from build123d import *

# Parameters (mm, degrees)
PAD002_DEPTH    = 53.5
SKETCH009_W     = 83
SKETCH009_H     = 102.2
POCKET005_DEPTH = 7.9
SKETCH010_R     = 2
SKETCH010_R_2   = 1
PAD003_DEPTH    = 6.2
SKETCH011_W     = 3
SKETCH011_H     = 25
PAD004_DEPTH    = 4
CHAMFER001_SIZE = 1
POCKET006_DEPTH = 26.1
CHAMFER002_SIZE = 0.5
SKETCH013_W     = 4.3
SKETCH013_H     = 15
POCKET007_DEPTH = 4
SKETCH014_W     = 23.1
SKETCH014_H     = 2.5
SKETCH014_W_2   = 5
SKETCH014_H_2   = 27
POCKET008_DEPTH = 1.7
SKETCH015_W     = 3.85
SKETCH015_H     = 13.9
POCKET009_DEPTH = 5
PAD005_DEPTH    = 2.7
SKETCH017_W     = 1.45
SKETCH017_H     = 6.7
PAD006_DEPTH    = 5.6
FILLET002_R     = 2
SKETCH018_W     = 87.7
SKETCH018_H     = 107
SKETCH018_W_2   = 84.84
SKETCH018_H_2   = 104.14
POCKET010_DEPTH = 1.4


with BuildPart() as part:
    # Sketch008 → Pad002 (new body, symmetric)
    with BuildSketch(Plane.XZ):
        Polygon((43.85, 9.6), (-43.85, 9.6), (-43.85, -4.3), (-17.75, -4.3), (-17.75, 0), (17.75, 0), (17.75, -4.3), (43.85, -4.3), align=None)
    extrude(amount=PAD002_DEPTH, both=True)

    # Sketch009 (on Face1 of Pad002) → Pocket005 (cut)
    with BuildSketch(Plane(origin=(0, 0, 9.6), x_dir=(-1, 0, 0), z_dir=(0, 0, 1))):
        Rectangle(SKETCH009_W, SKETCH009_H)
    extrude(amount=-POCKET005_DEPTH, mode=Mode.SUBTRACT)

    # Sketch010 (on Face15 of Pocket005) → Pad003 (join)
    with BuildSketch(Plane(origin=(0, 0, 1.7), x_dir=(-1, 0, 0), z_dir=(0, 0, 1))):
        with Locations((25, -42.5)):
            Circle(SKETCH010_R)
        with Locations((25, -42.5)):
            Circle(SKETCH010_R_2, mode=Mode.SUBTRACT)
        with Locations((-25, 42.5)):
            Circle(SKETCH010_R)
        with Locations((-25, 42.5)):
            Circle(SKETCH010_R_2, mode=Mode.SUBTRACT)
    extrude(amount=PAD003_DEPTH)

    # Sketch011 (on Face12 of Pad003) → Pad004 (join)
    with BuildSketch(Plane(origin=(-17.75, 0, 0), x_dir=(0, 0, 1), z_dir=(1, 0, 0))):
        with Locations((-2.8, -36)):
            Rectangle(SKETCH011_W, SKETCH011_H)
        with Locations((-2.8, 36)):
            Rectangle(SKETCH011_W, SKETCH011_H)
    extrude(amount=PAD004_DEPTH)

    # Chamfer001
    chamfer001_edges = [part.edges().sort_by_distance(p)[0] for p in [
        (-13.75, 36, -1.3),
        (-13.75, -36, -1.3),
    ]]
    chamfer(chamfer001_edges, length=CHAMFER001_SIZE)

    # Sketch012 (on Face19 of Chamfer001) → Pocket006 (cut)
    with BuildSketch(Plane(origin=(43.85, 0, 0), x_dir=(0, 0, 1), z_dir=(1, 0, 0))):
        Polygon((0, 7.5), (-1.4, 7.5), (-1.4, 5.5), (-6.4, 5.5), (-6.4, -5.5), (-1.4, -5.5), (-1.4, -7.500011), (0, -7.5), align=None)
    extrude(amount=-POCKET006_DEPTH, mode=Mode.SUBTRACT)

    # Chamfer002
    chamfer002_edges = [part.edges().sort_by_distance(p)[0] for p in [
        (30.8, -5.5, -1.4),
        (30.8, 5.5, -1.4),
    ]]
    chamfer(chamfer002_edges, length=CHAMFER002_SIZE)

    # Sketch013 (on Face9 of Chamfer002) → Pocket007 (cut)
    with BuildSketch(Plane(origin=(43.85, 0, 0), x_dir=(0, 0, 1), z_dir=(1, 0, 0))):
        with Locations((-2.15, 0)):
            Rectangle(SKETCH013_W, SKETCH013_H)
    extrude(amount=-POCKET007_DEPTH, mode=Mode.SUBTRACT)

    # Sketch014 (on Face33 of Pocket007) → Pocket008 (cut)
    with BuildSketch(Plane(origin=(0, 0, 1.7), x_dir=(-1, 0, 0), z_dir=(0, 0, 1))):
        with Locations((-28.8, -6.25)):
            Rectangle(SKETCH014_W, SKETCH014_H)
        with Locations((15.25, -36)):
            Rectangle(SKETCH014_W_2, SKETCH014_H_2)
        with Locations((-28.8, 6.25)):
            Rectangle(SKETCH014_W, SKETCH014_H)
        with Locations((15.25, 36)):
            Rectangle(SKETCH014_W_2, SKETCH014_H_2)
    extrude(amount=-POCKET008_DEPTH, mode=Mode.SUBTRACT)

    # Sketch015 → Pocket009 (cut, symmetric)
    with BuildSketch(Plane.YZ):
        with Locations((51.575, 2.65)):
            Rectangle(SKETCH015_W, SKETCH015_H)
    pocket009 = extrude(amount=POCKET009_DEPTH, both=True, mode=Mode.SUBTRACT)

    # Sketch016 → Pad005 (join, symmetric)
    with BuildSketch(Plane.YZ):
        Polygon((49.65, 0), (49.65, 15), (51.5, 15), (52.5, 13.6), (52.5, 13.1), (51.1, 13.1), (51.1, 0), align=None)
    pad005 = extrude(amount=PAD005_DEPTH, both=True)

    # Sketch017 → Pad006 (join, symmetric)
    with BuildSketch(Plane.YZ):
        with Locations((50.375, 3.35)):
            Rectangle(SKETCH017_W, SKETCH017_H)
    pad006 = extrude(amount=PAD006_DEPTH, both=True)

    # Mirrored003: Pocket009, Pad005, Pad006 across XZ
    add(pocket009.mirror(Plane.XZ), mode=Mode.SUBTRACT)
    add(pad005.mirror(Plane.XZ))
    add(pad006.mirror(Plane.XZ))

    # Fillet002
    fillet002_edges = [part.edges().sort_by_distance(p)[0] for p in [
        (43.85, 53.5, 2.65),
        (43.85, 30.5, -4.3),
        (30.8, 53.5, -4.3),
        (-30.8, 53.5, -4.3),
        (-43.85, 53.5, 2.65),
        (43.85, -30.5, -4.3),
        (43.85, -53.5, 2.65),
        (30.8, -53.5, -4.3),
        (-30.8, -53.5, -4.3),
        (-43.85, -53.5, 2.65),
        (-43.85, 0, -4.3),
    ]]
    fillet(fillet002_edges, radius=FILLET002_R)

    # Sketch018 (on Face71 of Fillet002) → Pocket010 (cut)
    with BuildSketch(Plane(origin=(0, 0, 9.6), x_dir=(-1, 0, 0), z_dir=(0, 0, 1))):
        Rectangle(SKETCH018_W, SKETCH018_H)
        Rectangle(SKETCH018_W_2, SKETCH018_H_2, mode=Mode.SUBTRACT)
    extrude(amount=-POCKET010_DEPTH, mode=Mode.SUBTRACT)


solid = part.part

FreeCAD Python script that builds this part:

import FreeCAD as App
import Part
import Sketcher

V = App.Vector


def edges_at(feature, points):
    """Names of the edges that pass closest to the given points."""
    edges = feature.Shape.Edges
    near = lambda p: min(range(len(edges)), key=lambda i: edges[i].distToShape(Part.Vertex(*p))[0])
    return sorted({f"Edge{near(p) + 1}" for p in points})

doc = App.newDocument("Part")
params = doc.addObject("Spreadsheet::Sheet", "Params")
for row, (alias, value) in enumerate([
    ("sketch1_width", "87.7 mm"),
    ("sketch1_width2", "26.1 mm"),
    ("sketch1_height", "13.9 mm"),
    ("sketch1_height2", "4.3 mm"),
    ("pad1_length", "107 mm"),
    ("sketch2_width", "83 mm"),
    ("sketch2_height", "102.2 mm"),
    ("pocket1_length", "7.9 mm"),
    ("sketch3_diameter", "4 mm"),
    ("sketch3_diameter2", "2 mm"),
    ("pad2_length", "6.2 mm"),
    ("sketch4_width", "25 mm"),
    ("sketch4_height", "3 mm"),
    ("pad3_length", "4 mm"),
    ("chamfer_size", "1 mm"),
    ("sketch5_width", "2 mm"),
    ("sketch5_width2", "11 mm"),
    ("sketch5_height", "5 mm"),
    ("sketch5_height2", "1.4 mm"),
    ("pocket2_length", "26.1 mm"),
    ("chamfer2_size", "0.5 mm"),
    ("sketch6_width", "15 mm"),
    ("sketch6_height", "4.3 mm"),
    ("pocket3_length", "4 mm"),
    ("sketch7_width", "5 mm"),
    ("sketch7_height", "27 mm"),
    ("sketch7_width2", "23.1 mm"),
    ("sketch7_height2", "2.5 mm"),
    ("pocket4_length", "1.7 mm"),
    ("sketch8_height", "13.9 mm"),
    ("sketch8_width", "3.85 mm"),
    ("pocket5_length", "10 mm"),
    ("sketch9_height", "15 mm"),
    ("sketch9_width", "1.4 mm"),
    ("sketch9_height2", "13.1 mm"),
    ("sketch9_height3", "0.5 mm"),
    ("sketch9_width2", "1.45 mm"),
    ("pad4_length", "5.4 mm"),
    ("sketch10_height", "6.7 mm"),
    ("sketch10_width", "1.45 mm"),
    ("pad5_length", "11.2 mm"),
    ("fillet_radius", "2 mm"),
    ("sketch11_height", "107 mm"),
    ("sketch11_width", "87.7 mm"),
    ("sketch11_width2", "84.84 mm"),
    ("sketch11_height2", "104.14 mm"),
    ("pocket6_length", "1.4 mm"),
], start=1):
    params.set(f"A{row}", alias)
    params.set(f"B{row}", "=" + value)
    params.setAlias(f"B{row}", alias)

body = doc.addObject("PartDesign::Body", "Body")

# Sketch on XZ plane
sketch1 = body.newObject("Sketcher::SketchObject", "Sketch")
sketch1.AttachmentSupport = (doc.getObject("XZ_Plane"), [""])
sketch1.MapMode = "FlatFace"
sketch1.addGeometry(Part.LineSegment(V(43.85, 9.6, 0), V(-43.85, 9.6, 0)), False)
sketch1.addGeometry(Part.LineSegment(V(-43.85, 9.6, 0), V(-43.85, -4.3, 0)), False)
sketch1.addGeometry(Part.LineSegment(V(-43.85, -4.3, 0), V(-17.75, -4.3, 0)), False)
sketch1.addGeometry(Part.LineSegment(V(-17.75, -4.3, 0), V(-17.75, 0, 0)), False)
sketch1.addGeometry(Part.LineSegment(V(-17.75, 0, 0), V(17.75, 0, 0)), False)
sketch1.addGeometry(Part.LineSegment(V(17.75, 0, 0), V(17.75, -4.3, 0)), False)
sketch1.addGeometry(Part.LineSegment(V(17.75, -4.3, 0), V(43.85, -4.3, 0)), False)
sketch1.addGeometry(Part.LineSegment(V(43.85, -4.3, 0), V(43.85, 9.6, 0)), False)
sketch1.addConstraint(Sketcher.Constraint("Coincident", 0, 2, 1, 1))
sketch1.addConstraint(Sketcher.Constraint("Coincident", 1, 2, 2, 1))
sketch1.addConstraint(Sketcher.Constraint("Coincident", 2, 2, 3, 1))
sketch1.addConstraint(Sketcher.Constraint("Coincident", 3, 2, 4, 1))
sketch1.addConstraint(Sketcher.Constraint("Coincident", 4, 2, 5, 1))
sketch1.addConstraint(Sketcher.Constraint("Coincident", 5, 2, 6, 1))
sketch1.addConstraint(Sketcher.Constraint("Coincident", 6, 2, 7, 1))
sketch1.addConstraint(Sketcher.Constraint("Coincident", 7, 2, 0, 1))
sketch1.addConstraint(Sketcher.Constraint("Horizontal", 0))
sketch1.addConstraint(Sketcher.Constraint("Vertical", 1))
sketch1.addConstraint(Sketcher.Constraint("Horizontal", 2))
sketch1.addConstraint(Sketcher.Constraint("Vertical", 3))
sketch1.addConstraint(Sketcher.Constraint("Horizontal", 4))
sketch1.addConstraint(Sketcher.Constraint("Vertical", 5))
sketch1.addConstraint(Sketcher.Constraint("Horizontal", 6))
sketch1.addConstraint(Sketcher.Constraint("Vertical", 7))
sketch1.addConstraint(Sketcher.Constraint("Symmetric", 3, 2, 4, 2, -1, 1))
sketch1.addConstraint(Sketcher.Constraint("Symmetric", 1, 2, 6, 2, -2))
sketch1.addConstraint(Sketcher.Constraint("DistanceX", 0, 2, 0, 1, 87.7))
sketch1.addConstraint(Sketcher.Constraint("DistanceX", 2, 1, 2, 2, 26.1))
sketch1.addConstraint(Sketcher.Constraint("DistanceY", 1, 2, 1, 1, 13.9))
sketch1.addConstraint(Sketcher.Constraint("DistanceY", 3, 1, 3, 2, 4.3))
sketch1.setExpression("Constraints[18]", "Params.sketch1_width")
sketch1.setExpression("Constraints[19]", "Params.sketch1_width2")
sketch1.setExpression("Constraints[20]", "Params.sketch1_height")
sketch1.setExpression("Constraints[21]", "Params.sketch1_height2")
pad1 = body.newObject("PartDesign::Pad", "Pad")
pad1.Profile = sketch1
pad1.setExpression("Length", "Params.pad1_length")
pad1.Midplane = True

# Sketch on XY plane
sketch2 = body.newObject("Sketcher::SketchObject", "Sketch001")
sketch2.AttachmentSupport = (doc.getObject("XY_Plane"), [""])
sketch2.MapMode = "FlatFace"
sketch2.AttachmentOffset = App.Placement(V(0, 0, 9.6), App.Rotation())
sketch2.addGeometry(Part.LineSegment(V(41.5, -51.1, 0), V(41.5, 51.1, 0)), False)
sketch2.addGeometry(Part.LineSegment(V(41.5, 51.1, 0), V(-41.5, 51.1, 0)), False)
sketch2.addGeometry(Part.LineSegment(V(-41.5, 51.1, 0), V(-41.5, -51.1, 0)), False)
sketch2.addGeometry(Part.LineSegment(V(-41.5, -51.1, 0), V(41.5, -51.1, 0)), False)
sketch2.addConstraint(Sketcher.Constraint("Coincident", 0, 2, 1, 1))
sketch2.addConstraint(Sketcher.Constraint("Coincident", 1, 2, 2, 1))
sketch2.addConstraint(Sketcher.Constraint("Coincident", 2, 2, 3, 1))
sketch2.addConstraint(Sketcher.Constraint("Coincident", 3, 2, 0, 1))
sketch2.addConstraint(Sketcher.Constraint("Vertical", 0))
sketch2.addConstraint(Sketcher.Constraint("Horizontal", 1))
sketch2.addConstraint(Sketcher.Constraint("Vertical", 2))
sketch2.addConstraint(Sketcher.Constraint("Horizontal", 3))
sketch2.addConstraint(Sketcher.Constraint("Symmetric", 0, 2, 2, 2, -1, 1))
sketch2.addConstraint(Sketcher.Constraint("DistanceX", 1, 2, 1, 1, 83.0))
sketch2.addConstraint(Sketcher.Constraint("DistanceY", 0, 1, 0, 2, 102.2))
sketch2.setExpression("Constraints[9]", "Params.sketch2_width")
sketch2.setExpression("Constraints[10]", "Params.sketch2_height")
pocket1 = body.newObject("PartDesign::Pocket", "Pocket")
pocket1.Profile = sketch2
pocket1.setExpression("Length", "Params.pocket1_length")

# Sketch on XY plane
sketch3 = body.newObject("Sketcher::SketchObject", "Sketch002")
sketch3.AttachmentSupport = (doc.getObject("XY_Plane"), [""])
sketch3.MapMode = "FlatFace"
sketch3.AttachmentOffset = App.Placement(V(0, 0, 1.7), App.Rotation())
sketch3.addGeometry(Part.Circle(V(-25, 42.5, 0), V(0, 0, 1), 2), False)
sketch3.addGeometry(Part.Circle(V(-25, 42.5, 0), V(0, 0, 1), 1), False)
sketch3.addGeometry(Part.Circle(V(25, -42.5, 0), V(0, 0, 1), 2), False)
sketch3.addGeometry(Part.Circle(V(25, -42.5, 0), V(0, 0, 1), 1), False)
sketch3.addConstraint(Sketcher.Constraint("Coincident", 1, 3, 0, 3))
sketch3.addConstraint(Sketcher.Constraint("Coincident", 3, 3, 2, 3))
sketch3.addConstraint(Sketcher.Constraint("Equal", 0, 2))
sketch3.addConstraint(Sketcher.Constraint("Equal", 1, 3))
sketch3.addConstraint(Sketcher.Constraint("Symmetric", 0, 3, 2, 3, -1, 1))
sketch3.addConstraint(Sketcher.Constraint("Diameter", 0, 4.0))
sketch3.addConstraint(Sketcher.Constraint("Diameter", 1, 2.0))
sketch3.addConstraint(Sketcher.Constraint("DistanceX", 0, 3, -1, 1, 25.0))
sketch3.addConstraint(Sketcher.Constraint("DistanceY", 2, 3, 0, 3, 85.0))
sketch3.setExpression("Constraints[5]", "Params.sketch3_diameter")
sketch3.setExpression("Constraints[6]", "Params.sketch3_diameter2")
pad2 = body.newObject("PartDesign::Pad", "Pad001")
pad2.Profile = sketch3
pad2.setExpression("Length", "Params.pad2_length")

# Sketch on YZ plane
sketch4 = body.newObject("Sketcher::SketchObject", "Sketch003")
sketch4.AttachmentSupport = (doc.getObject("YZ_Plane"), [""])
sketch4.MapMode = "FlatFace"
sketch4.AttachmentOffset = App.Placement(V(0, 0, -17.75), App.Rotation())
sketch4.addGeometry(Part.LineSegment(V(23.5, -4.3, 0), V(48.5, -4.3, 0)), False)
sketch4.addGeometry(Part.LineSegment(V(48.5, -4.3, 0), V(48.5, -1.3, 0)), False)
sketch4.addGeometry(Part.LineSegment(V(48.5, -1.3, 0), V(23.5, -1.3, 0)), False)
sketch4.addGeometry(Part.LineSegment(V(23.5, -1.3, 0), V(23.5, -4.3, 0)), False)
sketch4.addGeometry(Part.LineSegment(V(-48.5, -4.3, 0), V(-23.5, -4.3, 0)), False)
sketch4.addGeometry(Part.LineSegment(V(-23.5, -4.3, 0), V(-23.5, -1.3, 0)), False)
sketch4.addGeometry(Part.LineSegment(V(-23.5, -1.3, 0), V(-48.5, -1.3, 0)), False)
sketch4.addGeometry(Part.LineSegment(V(-48.5, -1.3, 0), V(-48.5, -4.3, 0)), False)
sketch4.addConstraint(Sketcher.Constraint("Coincident", 0, 2, 1, 1))
sketch4.addConstraint(Sketcher.Constraint("Coincident", 1, 2, 2, 1))
sketch4.addConstraint(Sketcher.Constraint("Coincident", 2, 2, 3, 1))
sketch4.addConstraint(Sketcher.Constraint("Coincident", 3, 2, 0, 1))
sketch4.addConstraint(Sketcher.Constraint("Coincident", 4, 2, 5, 1))
sketch4.addConstraint(Sketcher.Constraint("Coincident", 5, 2, 6, 1))
sketch4.addConstraint(Sketcher.Constraint("Coincident", 6, 2, 7, 1))
sketch4.addConstraint(Sketcher.Constraint("Coincident", 7, 2, 4, 1))
sketch4.addConstraint(Sketcher.Constraint("Horizontal", 0))
sketch4.addConstraint(Sketcher.Constraint("Vertical", 1))
sketch4.addConstraint(Sketcher.Constraint("Horizontal", 2))
sketch4.addConstraint(Sketcher.Constraint("Vertical", 3))
sketch4.addConstraint(Sketcher.Constraint("Horizontal", 4))
sketch4.addConstraint(Sketcher.Constraint("Vertical", 5))
sketch4.addConstraint(Sketcher.Constraint("Horizontal", 6))
sketch4.addConstraint(Sketcher.Constraint("Vertical", 7))
sketch4.addConstraint(Sketcher.Constraint("Symmetric", 3, 2, 4, 2, -2))
sketch4.addConstraint(Sketcher.Constraint("Symmetric", 1, 2, 6, 2, -2))
sketch4.addConstraint(Sketcher.Constraint("DistanceX", 0, 1, 0, 2, 25.0))
sketch4.addConstraint(Sketcher.Constraint("DistanceY", 1, 1, 1, 2, 3.0))
sketch4.addConstraint(Sketcher.Constraint("DistanceX", 4, 2, 3, 2, 47.0))
sketch4.addConstraint(Sketcher.Constraint("DistanceY", 0, 2, -1, 1, 4.3))
sketch4.setExpression("Constraints[18]", "Params.sketch4_width")
sketch4.setExpression("Constraints[19]", "Params.sketch4_height")
pad3 = body.newObject("PartDesign::Pad", "Pad002")
pad3.Profile = sketch4
pad3.setExpression("Length", "Params.pad3_length")
doc.recompute()

chamfer = body.newObject("PartDesign::Chamfer", "Chamfer")
chamfer.Base = (pad3, edges_at(pad3, [(-13.75, 36, -1.3), (-13.75, -36, -1.3)]))
chamfer.setExpression("Size", "Params.chamfer_size")

# Sketch on YZ plane
sketch5 = body.newObject("Sketcher::SketchObject", "Sketch004")
sketch5.AttachmentSupport = (doc.getObject("YZ_Plane"), [""])
sketch5.MapMode = "FlatFace"
sketch5.AttachmentOffset = App.Placement(V(0, 0, 43.85), App.Rotation())
sketch5.addGeometry(Part.LineSegment(V(-7.5, 0, 0), V(-7.5, -1.4, 0)), False)
sketch5.addGeometry(Part.LineSegment(V(-7.5, -1.4, 0), V(-5.5, -1.4, 0)), False)
sketch5.addGeometry(Part.LineSegment(V(-5.5, -1.4, 0), V(-5.5, -6.4, 0)), False)
sketch5.addGeometry(Part.LineSegment(V(-5.5, -6.4, 0), V(5.5, -6.4, 0)), False)
sketch5.addGeometry(Part.LineSegment(V(5.5, -6.4, 0), V(5.5, -1.4, 0)), False)
sketch5.addGeometry(Part.LineSegment(V(5.5, -1.4, 0), V(7.500011, -1.4, 0)), False)
sketch5.addGeometry(Part.LineSegment(V(7.500011, -1.4, 0), V(7.5, 0, 0)), False)
sketch5.addGeometry(Part.LineSegment(V(7.5, 0, 0), V(-7.5, 0, 0)), False)
sketch5.addConstraint(Sketcher.Constraint("Coincident", 0, 2, 1, 1))
sketch5.addConstraint(Sketcher.Constraint("Coincident", 1, 2, 2, 1))
sketch5.addConstraint(Sketcher.Constraint("Coincident", 2, 2, 3, 1))
sketch5.addConstraint(Sketcher.Constraint("Coincident", 3, 2, 4, 1))
sketch5.addConstraint(Sketcher.Constraint("Coincident", 4, 2, 5, 1))
sketch5.addConstraint(Sketcher.Constraint("Coincident", 5, 2, 6, 1))
sketch5.addConstraint(Sketcher.Constraint("Coincident", 6, 2, 7, 1))
sketch5.addConstraint(Sketcher.Constraint("Coincident", 7, 2, 0, 1))
sketch5.addConstraint(Sketcher.Constraint("Vertical", 0))
sketch5.addConstraint(Sketcher.Constraint("Horizontal", 1))
sketch5.addConstraint(Sketcher.Constraint("Vertical", 2))
sketch5.addConstraint(Sketcher.Constraint("Horizontal", 3))
sketch5.addConstraint(Sketcher.Constraint("Vertical", 4))
sketch5.addConstraint(Sketcher.Constraint("Horizontal", 5))
sketch5.addConstraint(Sketcher.Constraint("Horizontal", 7))
sketch5.addConstraint(Sketcher.Constraint("Symmetric", 6, 2, 7, 2, -1, 1))
sketch5.addConstraint(Sketcher.Constraint("Symmetric", 1, 2, 4, 2, -2))
sketch5.addConstraint(Sketcher.Constraint("DistanceX", 1, 1, 1, 2, 2.0))
sketch5.addConstraint(Sketcher.Constraint("DistanceX", 3, 1, 3, 2, 11.0))
sketch5.addConstraint(Sketcher.Constraint("DistanceY", 2, 2, 2, 1, 5.0))
sketch5.addConstraint(Sketcher.Constraint("DistanceY", 0, 2, 0, 1, 1.4))
sketch5.addConstraint(Sketcher.Constraint("DistanceX", 5, 1, 5, 2, 2.000011))
sketch5.setExpression("Constraints[17]", "Params.sketch5_width")
sketch5.setExpression("Constraints[18]", "Params.sketch5_width2")
sketch5.setExpression("Constraints[19]", "Params.sketch5_height")
sketch5.setExpression("Constraints[20]", "Params.sketch5_height2")
pocket2 = body.newObject("PartDesign::Pocket", "Pocket001")
pocket2.Profile = sketch5
pocket2.setExpression("Length", "Params.pocket2_length")
doc.recompute()

chamfer2 = body.newObject("PartDesign::Chamfer", "Chamfer001")
chamfer2.Base = (pocket2, edges_at(pocket2, [(30.8, -5.5, -1.4), (30.8, 5.5, -1.4)]))
chamfer2.setExpression("Size", "Params.chamfer2_size")

# Sketch on YZ plane
sketch6 = body.newObject("Sketcher::SketchObject", "Sketch005")
sketch6.AttachmentSupport = (doc.getObject("YZ_Plane"), [""])
sketch6.MapMode = "FlatFace"
sketch6.AttachmentOffset = App.Placement(V(0, 0, 43.85), App.Rotation())
sketch6.addGeometry(Part.LineSegment(V(-7.5, -4.3, 0), V(7.5, -4.3, 0)), False)
sketch6.addGeometry(Part.LineSegment(V(7.5, -4.3, 0), V(7.5, 0, 0)), False)
sketch6.addGeometry(Part.LineSegment(V(7.5, 0, 0), V(-7.5, 0, 0)), False)
sketch6.addGeometry(Part.LineSegment(V(-7.5, 0, 0), V(-7.5, -4.3, 0)), False)
sketch6.addConstraint(Sketcher.Constraint("Coincident", 0, 2, 1, 1))
sketch6.addConstraint(Sketcher.Constraint("Coincident", 1, 2, 2, 1))
sketch6.addConstraint(Sketcher.Constraint("Coincident", 2, 2, 3, 1))
sketch6.addConstraint(Sketcher.Constraint("Coincident", 3, 2, 0, 1))
sketch6.addConstraint(Sketcher.Constraint("Horizontal", 0))
sketch6.addConstraint(Sketcher.Constraint("Vertical", 1))
sketch6.addConstraint(Sketcher.Constraint("Horizontal", 2))
sketch6.addConstraint(Sketcher.Constraint("Vertical", 3))
sketch6.addConstraint(Sketcher.Constraint("Symmetric", 1, 2, 2, 2, -1, 1))
sketch6.addConstraint(Sketcher.Constraint("DistanceX", 0, 1, 0, 2, 15.0))
sketch6.addConstraint(Sketcher.Constraint("DistanceY", 1, 1, 1, 2, 4.3))
sketch6.setExpression("Constraints[9]", "Params.sketch6_width")
sketch6.setExpression("Constraints[10]", "Params.sketch6_height")
pocket3 = body.newObject("PartDesign::Pocket", "Pocket002")
pocket3.Profile = sketch6
pocket3.setExpression("Length", "Params.pocket3_length")

# Sketch on XY plane
sketch7 = body.newObject("Sketcher::SketchObject", "Sketch006")
sketch7.AttachmentSupport = (doc.getObject("XY_Plane"), [""])
sketch7.MapMode = "FlatFace"
sketch7.AttachmentOffset = App.Placement(V(0, 0, 1.7), App.Rotation())
sketch7.addGeometry(Part.LineSegment(V(40.35, 5, 0), V(40.35, 7.5, 0)), False)
sketch7.addGeometry(Part.LineSegment(V(40.35, 7.5, 0), V(17.25, 7.5, 0)), False)
sketch7.addGeometry(Part.LineSegment(V(17.25, 7.5, 0), V(17.25, 5, 0)), False)
sketch7.addGeometry(Part.LineSegment(V(17.25, 5, 0), V(40.35, 5, 0)), False)
sketch7.addGeometry(Part.LineSegment(V(-12.75, 22.5, 0), V(-12.75, 49.5, 0)), False)
sketch7.addGeometry(Part.LineSegment(V(-12.75, 49.5, 0), V(-17.75, 49.5, 0)), False)
sketch7.addGeometry(Part.LineSegment(V(-17.75, 49.5, 0), V(-17.75, 22.5, 0)), False)
sketch7.addGeometry(Part.LineSegment(V(-17.75, 22.5, 0), V(-12.75, 22.5, 0)), False)
sketch7.addGeometry(Part.LineSegment(V(40.35, -7.5, 0), V(40.35, -5, 0)), False)
sketch7.addGeometry(Part.LineSegment(V(40.35, -5, 0), V(17.25, -5, 0)), False)
sketch7.addGeometry(Part.LineSegment(V(17.25, -5, 0), V(17.25, -7.5, 0)), False)
sketch7.addGeometry(Part.LineSegment(V(17.25, -7.5, 0), V(40.35, -7.5, 0)), False)
sketch7.addGeometry(Part.LineSegment(V(-12.75, -49.5, 0), V(-12.75, -22.5, 0)), False)
sketch7.addGeometry(Part.LineSegment(V(-12.75, -22.5, 0), V(-17.75, -22.5, 0)), False)
sketch7.addGeometry(Part.LineSegment(V(-17.75, -22.5, 0), V(-17.75, -49.5, 0)), False)
sketch7.addGeometry(Part.LineSegment(V(-17.75, -49.5, 0), V(-12.75, -49.5, 0)), False)
sketch7.addConstraint(Sketcher.Constraint("Coincident", 0, 2, 1, 1))
sketch7.addConstraint(Sketcher.Constraint("Coincident", 1, 2, 2, 1))
sketch7.addConstraint(Sketcher.Constraint("Coincident", 2, 2, 3, 1))
sketch7.addConstraint(Sketcher.Constraint("Coincident", 3, 2, 0, 1))
sketch7.addConstraint(Sketcher.Constraint("Coincident", 4, 2, 5, 1))
sketch7.addConstraint(Sketcher.Constraint("Coincident", 5, 2, 6, 1))
sketch7.addConstraint(Sketcher.Constraint("Coincident", 6, 2, 7, 1))
sketch7.addConstraint(Sketcher.Constraint("Coincident", 7, 2, 4, 1))
sketch7.addConstraint(Sketcher.Constraint("Coincident", 8, 2, 9, 1))
sketch7.addConstraint(Sketcher.Constraint("Coincident", 9, 2, 10, 1))
sketch7.addConstraint(Sketcher.Constraint("Coincident", 10, 2, 11, 1))
sketch7.addConstraint(Sketcher.Constraint("Coincident", 11, 2, 8, 1))
sketch7.addConstraint(Sketcher.Constraint("Coincident", 12, 2, 13, 1))
sketch7.addConstraint(Sketcher.Constraint("Coincident", 13, 2, 14, 1))
sketch7.addConstraint(Sketcher.Constraint("Coincident", 14, 2, 15, 1))
sketch7.addConstraint(Sketcher.Constraint("Coincident", 15, 2, 12, 1))
sketch7.addConstraint(Sketcher.Constraint("Vertical", 0))
sketch7.addConstraint(Sketcher.Constraint("Horizontal", 1))
sketch7.addConstraint(Sketcher.Constraint("Vertical", 2))
sketch7.addConstraint(Sketcher.Constraint("Horizontal", 3))
sketch7.addConstraint(Sketcher.Constraint("Vertical", 4))
sketch7.addConstraint(Sketcher.Constraint("Horizontal", 5))
sketch7.addConstraint(Sketcher.Constraint("Vertical", 6))
sketch7.addConstraint(Sketcher.Constraint("Horizontal", 7))
sketch7.addConstraint(Sketcher.Constraint("Vertical", 8))
sketch7.addConstraint(Sketcher.Constraint("Horizontal", 9))
sketch7.addConstraint(Sketcher.Constraint("Vertical", 10))
sketch7.addConstraint(Sketcher.Constraint("Horizontal", 11))
sketch7.addConstraint(Sketcher.Constraint("Vertical", 12))
sketch7.addConstraint(Sketcher.Constraint("Horizontal", 13))
sketch7.addConstraint(Sketcher.Constraint("Vertical", 14))
sketch7.addConstraint(Sketcher.Constraint("Horizontal", 15))
sketch7.addConstraint(Sketcher.Constraint("Symmetric", 3, 2, 8, 2, -1))
sketch7.addConstraint(Sketcher.Constraint("Symmetric", 1, 2, 10, 2, -1))
sketch7.addConstraint(Sketcher.Constraint("Symmetric", 7, 2, 12, 2, -1))
sketch7.addConstraint(Sketcher.Constraint("Symmetric", 5, 2, 14, 2, -1))
sketch7.addConstraint(Sketcher.Constraint("DistanceX", 5, 2, 5, 1, 5.0))
sketch7.addConstraint(Sketcher.Constraint("DistanceY", 4, 1, 4, 2, 27.0))
sketch7.addConstraint(Sketcher.Constraint("DistanceX", 1, 2, 1, 1, 23.1))
sketch7.addConstraint(Sketcher.Constraint("DistanceY", 0, 1, 0, 2, 2.5))
sketch7.addConstraint(Sketcher.Constraint("DistanceY", -1, 1, 2, 2, 5.0))
sketch7.addConstraint(Sketcher.Constraint("DistanceX", 4, 2, 1, 2, 30.0))
sketch7.addConstraint(Sketcher.Constraint("DistanceY", 1, 2, 4, 2, 42.0))
sketch7.addConstraint(Sketcher.Constraint("DistanceX", -1, 1, 0, 2, 40.35))
sketch7.setExpression("Constraints[36]", "Params.sketch7_width")
sketch7.setExpression("Constraints[37]", "Params.sketch7_height")
sketch7.setExpression("Constraints[38]", "Params.sketch7_width2")
sketch7.setExpression("Constraints[39]", "Params.sketch7_height2")
pocket4 = body.newObject("PartDesign::Pocket", "Pocket003")
pocket4.Profile = sketch7
pocket4.setExpression("Length", "Params.pocket4_length")

# Sketch on YZ plane
sketch8 = body.newObject("Sketcher::SketchObject", "Sketch007")
sketch8.AttachmentSupport = (doc.getObject("YZ_Plane"), [""])
sketch8.MapMode = "FlatFace"
sketch8.addGeometry(Part.LineSegment(V(49.65, 9.6, 0), V(49.65, -4.3, 0)), False)
sketch8.addGeometry(Part.LineSegment(V(49.65, -4.3, 0), V(53.5, -4.3, 0)), False)
sketch8.addGeometry(Part.LineSegment(V(53.5, -4.3, 0), V(53.5, 9.6, 0)), False)
sketch8.addGeometry(Part.LineSegment(V(53.5, 9.6, 0), V(49.65, 9.6, 0)), False)
sketch8.addConstraint(Sketcher.Constraint("Coincident", 0, 2, 1, 1))
sketch8.addConstraint(Sketcher.Constraint("Coincident", 1, 2, 2, 1))
sketch8.addConstraint(Sketcher.Constraint("Coincident", 2, 2, 3, 1))
sketch8.addConstraint(Sketcher.Constraint("Coincident", 3, 2, 0, 1))
sketch8.addConstraint(Sketcher.Constraint("Vertical", 0))
sketch8.addConstraint(Sketcher.Constraint("Horizontal", 1))
sketch8.addConstraint(Sketcher.Constraint("Vertical", 2))
sketch8.addConstraint(Sketcher.Constraint("Horizontal", 3))
sketch8.addConstraint(Sketcher.Constraint("DistanceY", 0, 2, 0, 1, 13.9))
sketch8.addConstraint(Sketcher.Constraint("DistanceX", 1, 1, 1, 2, 3.85))
sketch8.addConstraint(Sketcher.Constraint("DistanceY", 0, 2, -1, 1, 4.3))
sketch8.addConstraint(Sketcher.Constraint("DistanceX", -1, 1, 1, 2, 53.5))
sketch8.setExpression("Constraints[8]", "Params.sketch8_height")
sketch8.setExpression("Constraints[9]", "Params.sketch8_width")
pocket5 = body.newObject("PartDesign::Pocket", "Pocket004")
pocket5.Profile = sketch8
pocket5.setExpression("Length", "Params.pocket5_length")
pocket5.Midplane = True

# Sketch on YZ plane
sketch9 = body.newObject("Sketcher::SketchObject", "Sketch008")
sketch9.AttachmentSupport = (doc.getObject("YZ_Plane"), [""])
sketch9.MapMode = "FlatFace"
sketch9.addGeometry(Part.LineSegment(V(49.65, 15, 0), V(49.65, 0, 0)), False)
sketch9.addGeometry(Part.LineSegment(V(49.65, 0, 0), V(51.1, 0, 0)), False)
sketch9.addGeometry(Part.LineSegment(V(51.1, 0, 0), V(51.1, 13.1, 0)), False)
sketch9.addGeometry(Part.LineSegment(V(51.1, 13.1, 0), V(52.5, 13.1, 0)), False)
sketch9.addGeometry(Part.LineSegment(V(52.5, 13.1, 0), V(52.5, 13.6, 0)), False)
sketch9.addGeometry(Part.LineSegment(V(52.5, 13.6, 0), V(51.5, 15, 0)), False)
sketch9.addGeometry(Part.LineSegment(V(51.5, 15, 0), V(49.65, 15, 0)), False)
sketch9.addConstraint(Sketcher.Constraint("Coincident", 0, 2, 1, 1))
sketch9.addConstraint(Sketcher.Constraint("Coincident", 1, 2, 2, 1))
sketch9.addConstraint(Sketcher.Constraint("Coincident", 2, 2, 3, 1))
sketch9.addConstraint(Sketcher.Constraint("Coincident", 3, 2, 4, 1))
sketch9.addConstraint(Sketcher.Constraint("Coincident", 4, 2, 5, 1))
sketch9.addConstraint(Sketcher.Constraint("Coincident", 5, 2, 6, 1))
sketch9.addConstraint(Sketcher.Constraint("Coincident", 6, 2, 0, 1))
sketch9.addConstraint(Sketcher.Constraint("Vertical", 0))
sketch9.addConstraint(Sketcher.Constraint("Horizontal", 1))
sketch9.addConstraint(Sketcher.Constraint("Vertical", 2))
sketch9.addConstraint(Sketcher.Constraint("Horizontal", 3))
sketch9.addConstraint(Sketcher.Constraint("Vertical", 4))
sketch9.addConstraint(Sketcher.Constraint("Horizontal", 6))
sketch9.addConstraint(Sketcher.Constraint("PointOnObject", 0, 2, -1))
sketch9.addConstraint(Sketcher.Constraint("DistanceY", 0, 2, 0, 1, 15.0))
sketch9.addConstraint(Sketcher.Constraint("DistanceX", 3, 1, 3, 2, 1.4))
sketch9.addConstraint(Sketcher.Constraint("DistanceY", 2, 1, 2, 2, 13.1))
sketch9.addConstraint(Sketcher.Constraint("DistanceY", 4, 1, 4, 2, 0.5))
sketch9.addConstraint(Sketcher.Constraint("DistanceX", 5, 2, 4, 2, 1.0))
sketch9.addConstraint(Sketcher.Constraint("DistanceX", 1, 1, 1, 2, 1.45))
sketch9.addConstraint(Sketcher.Constraint("DistanceX", -1, 1, 1, 2, 51.1))
sketch9.setExpression("Constraints[14]", "Params.sketch9_height")
sketch9.setExpression("Constraints[15]", "Params.sketch9_width")
sketch9.setExpression("Constraints[16]", "Params.sketch9_height2")
sketch9.setExpression("Constraints[17]", "Params.sketch9_height3")
sketch9.setExpression("Constraints[19]", "Params.sketch9_width2")
pad4 = body.newObject("PartDesign::Pad", "Pad003")
pad4.Profile = sketch9
pad4.setExpression("Length", "Params.pad4_length")
pad4.Midplane = True

# Sketch on YZ plane
sketch10 = body.newObject("Sketcher::SketchObject", "Sketch009")
sketch10.AttachmentSupport = (doc.getObject("YZ_Plane"), [""])
sketch10.MapMode = "FlatFace"
sketch10.addGeometry(Part.LineSegment(V(49.65, 6.7, 0), V(49.65, 0, 0)), False)
sketch10.addGeometry(Part.LineSegment(V(49.65, 0, 0), V(51.1, 0, 0)), False)
sketch10.addGeometry(Part.LineSegment(V(51.1, 0, 0), V(51.1, 6.7, 0)), False)
sketch10.addGeometry(Part.LineSegment(V(51.1, 6.7, 0), V(49.65, 6.7, 0)), False)
sketch10.addConstraint(Sketcher.Constraint("Coincident", 0, 2, 1, 1))
sketch10.addConstraint(Sketcher.Constraint("Coincident", 1, 2, 2, 1))
sketch10.addConstraint(Sketcher.Constraint("Coincident", 2, 2, 3, 1))
sketch10.addConstraint(Sketcher.Constraint("Coincident", 3, 2, 0, 1))
sketch10.addConstraint(Sketcher.Constraint("Vertical", 0))
sketch10.addConstraint(Sketcher.Constraint("Horizontal", 1))
sketch10.addConstraint(Sketcher.Constraint("Vertical", 2))
sketch10.addConstraint(Sketcher.Constraint("Horizontal", 3))
sketch10.addConstraint(Sketcher.Constraint("PointOnObject", 0, 2, -1))
sketch10.addConstraint(Sketcher.Constraint("DistanceY", 0, 2, 0, 1, 6.7))
sketch10.addConstraint(Sketcher.Constraint("DistanceX", 1, 1, 1, 2, 1.45))
sketch10.addConstraint(Sketcher.Constraint("DistanceX", -1, 1, 1, 2, 51.1))
sketch10.setExpression("Constraints[9]", "Params.sketch10_height")
sketch10.setExpression("Constraints[10]", "Params.sketch10_width")
pad5 = body.newObject("PartDesign::Pad", "Pad004")
pad5.Profile = sketch10
pad5.setExpression("Length", "Params.pad5_length")
pad5.Midplane = True
doc.recompute()

mirrored = body.newObject("PartDesign::Mirrored", "Mirrored")
mirrored.Originals = [pocket5, pad4, pad5]
mirrored.MirrorPlane = (doc.getObject("XZ_Plane"), [""])
body.Tip = mirrored
doc.recompute()

fillet = body.newObject("PartDesign::Fillet", "Fillet")
fillet.Base = (mirrored, edges_at(mirrored, [
    (43.85, 53.5, 2.65),
    (43.85, 30.5, -4.3),
    (30.8, 53.5, -4.3),
    (-30.8, 53.5, -4.3),
    (-43.85, 53.5, 2.65),
    (43.85, -30.5, -4.3),
    (43.85, -53.5, 2.65),
    (30.8, -53.5, -4.3),
    (-30.8, -53.5, -4.3),
    (-43.85, -53.5, 2.65),
    (-43.85, 0, -4.3),
]))
fillet.setExpression("Radius", "Params.fillet_radius")

# Sketch on XY plane
sketch11 = body.newObject("Sketcher::SketchObject", "Sketch010")
sketch11.AttachmentSupport = (doc.getObject("XY_Plane"), [""])
sketch11.MapMode = "FlatFace"
sketch11.AttachmentOffset = App.Placement(V(0, 0, 9.6), App.Rotation())
sketch11.addGeometry(Part.LineSegment(V(43.85, -53.5, 0), V(43.85, 53.5, 0)), False)
sketch11.addGeometry(Part.LineSegment(V(43.85, 53.5, 0), V(-43.85, 53.5, 0)), False)
sketch11.addGeometry(Part.LineSegment(V(-43.85, 53.5, 0), V(-43.85, -53.5, 0)), False)
sketch11.addGeometry(Part.LineSegment(V(-43.85, -53.5, 0), V(43.85, -53.5, 0)), False)
sketch11.addGeometry(Part.LineSegment(V(-42.42, 52.07, 0), V(42.42, 52.07, 0)), False)
sketch11.addGeometry(Part.LineSegment(V(42.42, 52.07, 0), V(42.42, -52.07, 0)), False)
sketch11.addGeometry(Part.LineSegment(V(42.42, -52.07, 0), V(-42.42, -52.07, 0)), False)
sketch11.addGeometry(Part.LineSegment(V(-42.42, -52.07, 0), V(-42.42, 52.07, 0)), False)
sketch11.addConstraint(Sketcher.Constraint("Coincident", 0, 2, 1, 1))
sketch11.addConstraint(Sketcher.Constraint("Coincident", 1, 2, 2, 1))
sketch11.addConstraint(Sketcher.Constraint("Coincident", 2, 2, 3, 1))
sketch11.addConstraint(Sketcher.Constraint("Coincident", 3, 2, 0, 1))
sketch11.addConstraint(Sketcher.Constraint("Coincident", 4, 2, 5, 1))
sketch11.addConstraint(Sketcher.Constraint("Coincident", 5, 2, 6, 1))
sketch11.addConstraint(Sketcher.Constraint("Coincident", 6, 2, 7, 1))
sketch11.addConstraint(Sketcher.Constraint("Coincident", 7, 2, 4, 1))
sketch11.addConstraint(Sketcher.Constraint("Vertical", 0))
sketch11.addConstraint(Sketcher.Constraint("Horizontal", 1))
sketch11.addConstraint(Sketcher.Constraint("Vertical", 2))
sketch11.addConstraint(Sketcher.Constraint("Horizontal", 3))
sketch11.addConstraint(Sketcher.Constraint("Horizontal", 4))
sketch11.addConstraint(Sketcher.Constraint("Vertical", 5))
sketch11.addConstraint(Sketcher.Constraint("Horizontal", 6))
sketch11.addConstraint(Sketcher.Constraint("Vertical", 7))
sketch11.addConstraint(Sketcher.Constraint("Symmetric", 0, 2, 2, 2, -1, 1))
sketch11.addConstraint(Sketcher.Constraint("Symmetric", 4, 2, 6, 2, -1, 1))
sketch11.addConstraint(Sketcher.Constraint("DistanceY", 0, 1, 0, 2, 107.0))
sketch11.addConstraint(Sketcher.Constraint("DistanceX", 1, 2, 1, 1, 87.7))
sketch11.addConstraint(Sketcher.Constraint("DistanceX", 4, 1, 4, 2, 84.84))
sketch11.addConstraint(Sketcher.Constraint("DistanceY", 5, 2, 5, 1, 104.14))
sketch11.setExpression("Constraints[18]", "Params.sketch11_height")
sketch11.setExpression("Constraints[19]", "Params.sketch11_width")
sketch11.setExpression("Constraints[20]", "Params.sketch11_width2")
sketch11.setExpression("Constraints[21]", "Params.sketch11_height2")
pocket6 = body.newObject("PartDesign::Pocket", "Pocket005")
pocket6.Profile = sketch11
pocket6.setExpression("Length", "Params.pocket6_length")

doc.recompute()
